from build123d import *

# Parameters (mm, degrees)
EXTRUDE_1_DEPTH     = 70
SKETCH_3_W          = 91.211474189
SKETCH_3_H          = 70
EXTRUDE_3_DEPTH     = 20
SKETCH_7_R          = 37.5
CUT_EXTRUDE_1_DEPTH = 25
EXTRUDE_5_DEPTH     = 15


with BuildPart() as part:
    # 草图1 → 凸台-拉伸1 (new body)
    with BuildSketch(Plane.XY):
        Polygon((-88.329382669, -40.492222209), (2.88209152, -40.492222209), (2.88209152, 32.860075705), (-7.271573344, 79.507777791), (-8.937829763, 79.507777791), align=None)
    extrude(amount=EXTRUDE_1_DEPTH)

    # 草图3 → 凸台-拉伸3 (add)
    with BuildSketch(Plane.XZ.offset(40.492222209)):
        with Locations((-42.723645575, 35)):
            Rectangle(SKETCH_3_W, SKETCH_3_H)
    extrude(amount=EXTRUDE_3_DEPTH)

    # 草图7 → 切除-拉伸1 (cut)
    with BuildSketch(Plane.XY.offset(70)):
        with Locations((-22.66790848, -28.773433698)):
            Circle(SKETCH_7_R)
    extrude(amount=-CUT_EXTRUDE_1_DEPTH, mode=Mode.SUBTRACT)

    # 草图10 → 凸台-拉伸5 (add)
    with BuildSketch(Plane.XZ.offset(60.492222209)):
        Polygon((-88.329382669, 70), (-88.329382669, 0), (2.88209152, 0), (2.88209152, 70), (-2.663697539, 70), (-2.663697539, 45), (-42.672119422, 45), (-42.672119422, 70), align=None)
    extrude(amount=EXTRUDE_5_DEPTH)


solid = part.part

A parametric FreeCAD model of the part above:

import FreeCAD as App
import Part
import Sketcher


def add_polygon(sketch, points):
    """Adds a closed chain of lines whose ends are joined by coincident constraints."""
    first, n = sketch.GeometryCount, len(points)
    for a, b in zip(points, points[1:] + points[:1]):
        sketch.addGeometry(Part.LineSegment(App.Vector(*a, 0), App.Vector(*b, 0)), False)
    for i in range(n):
        sketch.addConstraint(Sketcher.Constraint("Coincident", first + i, 2, first + (i + 1) % n, 1))

doc = App.newDocument("Part")
body = doc.addObject("PartDesign::Body", "Body")

# Sketch on XY plane
sketch1 = body.newObject("Sketcher::SketchObject", "Sketch")
sketch1.AttachmentSupport = (doc.getObject("XY_Plane"), [""])
sketch1.MapMode = "FlatFace"
add_polygon(sketch1, [(-88.329383, -40.492222), (2.882092, -40.492222), (2.882092, 32.860076), (-7.271573, 79.507778), (-8.93783, 79.507778)])  # lines 0-4
sketch1.addConstraint([
    Sketcher.Constraint("Horizontal", 0),
    Sketcher.Constraint("Vertical", 1),
    Sketcher.Constraint("Horizontal", 3),
    Sketcher.Constraint("DistanceY", 0, 2, 2, 2, 120.0),
    Sketcher.Constraint("DistanceX", 0, 1, 0, 2, 91.211474),
    Sketcher.Constraint("DistanceX", 3, 2, 3, 1, 1.666256),
    Sketcher.Constraint("DistanceY", 1, 1, 1, 2, 73.352298),
    Sketcher.Constraint("DistanceX", -1, 1, 0, 2, 2.882092),
    Sketcher.Constraint("DistanceX", 3, 2, -1, 1, 8.93783),
    Sketcher.Constraint("DistanceY", 0, 2, -1, 1, 40.492222),
])
pad1 = body.newObject("PartDesign::Pad", "Pad")
pad1.Profile = sketch1
pad1.Length = 70

# Sketch on XZ plane
sketch2 = body.newObject("Sketcher::SketchObject", "Sketch001")
sketch2.AttachmentSupport = (doc.getObject("XZ_Plane"), [""])
sketch2.MapMode = "FlatFace"
sketch2.AttachmentOffset = App.Placement(App.Vector(0, 0, 40.492222), App.Rotation())
add_polygon(sketch2, [(-88.329383, 70), (-88.329383, 0), (2.882092, 0), (2.882092, 70)])  # lines 0-3
sketch2.addConstraint([
    Sketcher.Constraint("Vertical", 0),
    Sketcher.Constraint("Horizontal", 1),
    Sketcher.Constraint("Vertical", 2),
    Sketcher.Constraint("Horizontal", 3),
    Sketcher.Constraint("PointOnObject", 0, 2, -1),
    Sketcher.Constraint("DistanceY", 0, 2, 0, 1, 70.0),
    Sketcher.Constraint("DistanceX", 1, 1, 1, 2, 91.211474),
    Sketcher.Constraint("DistanceX", -1, 1, 1, 2, 2.882092),
])
pad2 = body.newObject("PartDesign::Pad", "Pad001")
pad2.Profile = sketch2
pad2.Length = 20

# Sketch on XY plane
sketch3 = body.newObject("Sketcher::SketchObject", "Sketch002")
sketch3.AttachmentSupport = (doc.getObject("XY_Plane"), [""])
sketch3.MapMode = "FlatFace"
sketch3.AttachmentOffset = App.Placement(App.Vector(0, 0, 70), App.Rotation())
sketch3.addGeometry(Part.Circle(App.Vector(-22.667908, -28.773434, 0), App.Vector(0, 0, 1), 37.5), False)
sketch3.addConstraint([
    Sketcher.Constraint("Diameter", 0, 75.0),
    Sketcher.Constraint("DistanceX", 0, 3, -1, 1, 22.667908),
    Sketcher.Constraint("DistanceY", 0, 3, -1, 1, 28.773434),
])
pocket1 = body.newObject("PartDesign::Pocket", "Pocket")
pocket1.Profile = sketch3
pocket1.Length = 25

# Sketch on XZ plane
sketch4 = body.newObject("Sketcher::SketchObject", "Sketch003")
sketch4.AttachmentSupport = (doc.getObject("XZ_Plane"), [""])
sketch4.MapMode = "FlatFace"
sketch4.AttachmentOffset = App.Placement(App.Vector(0, 0, 60.492222), App.Rotation())
add_polygon(sketch4, [(-88.329383, 70), (-88.329383, 0), (2.882092, 0), (2.882092, 70), (-2.663698, 70), (-2.663698, 45), (-42.672119, 45), (-42.672119, 70)])  # lines 0-7
sketch4.addConstraint([
    Sketcher.Constraint("Vertical", 0),
    Sketcher.Constraint("Horizontal", 1),
    Sketcher.Constraint("Vertical", 2),
    Sketcher.Constraint("Horizontal", 3),
    Sketcher.Constraint("Vertical", 4),
    Sketcher.Constraint("Horizontal", 5),
    Sketcher.Constraint("Vertical", 6),
    Sketcher.Constraint("Horizontal", 7),
    Sketcher.Constraint("PointOnObject", 0, 2, -1),
    Sketcher.Constraint("Horizontal", 3, 2, 6, 2),
    Sketcher.Constraint("DistanceY", 0, 2, 0, 1, 70.0),
    Sketcher.Constraint("DistanceY", 4, 2, 4, 1, 25.0),
    Sketcher.Constraint("DistanceX", 3, 2, 3, 1, 5.545789),
    Sketcher.Constraint("DistanceX", 5, 2, 5, 1, 40.008422),
    Sketcher.Constraint("DistanceX", 1, 1, 1, 2, 91.211474),
    Sketcher.Constraint("DistanceX", -1, 1, 1, 2, 2.882092),
])
pad3 = body.newObject("PartDesign::Pad", "Pad002")
pad3.Profile = sketch4
pad3.Length = 15

doc.recompute()
